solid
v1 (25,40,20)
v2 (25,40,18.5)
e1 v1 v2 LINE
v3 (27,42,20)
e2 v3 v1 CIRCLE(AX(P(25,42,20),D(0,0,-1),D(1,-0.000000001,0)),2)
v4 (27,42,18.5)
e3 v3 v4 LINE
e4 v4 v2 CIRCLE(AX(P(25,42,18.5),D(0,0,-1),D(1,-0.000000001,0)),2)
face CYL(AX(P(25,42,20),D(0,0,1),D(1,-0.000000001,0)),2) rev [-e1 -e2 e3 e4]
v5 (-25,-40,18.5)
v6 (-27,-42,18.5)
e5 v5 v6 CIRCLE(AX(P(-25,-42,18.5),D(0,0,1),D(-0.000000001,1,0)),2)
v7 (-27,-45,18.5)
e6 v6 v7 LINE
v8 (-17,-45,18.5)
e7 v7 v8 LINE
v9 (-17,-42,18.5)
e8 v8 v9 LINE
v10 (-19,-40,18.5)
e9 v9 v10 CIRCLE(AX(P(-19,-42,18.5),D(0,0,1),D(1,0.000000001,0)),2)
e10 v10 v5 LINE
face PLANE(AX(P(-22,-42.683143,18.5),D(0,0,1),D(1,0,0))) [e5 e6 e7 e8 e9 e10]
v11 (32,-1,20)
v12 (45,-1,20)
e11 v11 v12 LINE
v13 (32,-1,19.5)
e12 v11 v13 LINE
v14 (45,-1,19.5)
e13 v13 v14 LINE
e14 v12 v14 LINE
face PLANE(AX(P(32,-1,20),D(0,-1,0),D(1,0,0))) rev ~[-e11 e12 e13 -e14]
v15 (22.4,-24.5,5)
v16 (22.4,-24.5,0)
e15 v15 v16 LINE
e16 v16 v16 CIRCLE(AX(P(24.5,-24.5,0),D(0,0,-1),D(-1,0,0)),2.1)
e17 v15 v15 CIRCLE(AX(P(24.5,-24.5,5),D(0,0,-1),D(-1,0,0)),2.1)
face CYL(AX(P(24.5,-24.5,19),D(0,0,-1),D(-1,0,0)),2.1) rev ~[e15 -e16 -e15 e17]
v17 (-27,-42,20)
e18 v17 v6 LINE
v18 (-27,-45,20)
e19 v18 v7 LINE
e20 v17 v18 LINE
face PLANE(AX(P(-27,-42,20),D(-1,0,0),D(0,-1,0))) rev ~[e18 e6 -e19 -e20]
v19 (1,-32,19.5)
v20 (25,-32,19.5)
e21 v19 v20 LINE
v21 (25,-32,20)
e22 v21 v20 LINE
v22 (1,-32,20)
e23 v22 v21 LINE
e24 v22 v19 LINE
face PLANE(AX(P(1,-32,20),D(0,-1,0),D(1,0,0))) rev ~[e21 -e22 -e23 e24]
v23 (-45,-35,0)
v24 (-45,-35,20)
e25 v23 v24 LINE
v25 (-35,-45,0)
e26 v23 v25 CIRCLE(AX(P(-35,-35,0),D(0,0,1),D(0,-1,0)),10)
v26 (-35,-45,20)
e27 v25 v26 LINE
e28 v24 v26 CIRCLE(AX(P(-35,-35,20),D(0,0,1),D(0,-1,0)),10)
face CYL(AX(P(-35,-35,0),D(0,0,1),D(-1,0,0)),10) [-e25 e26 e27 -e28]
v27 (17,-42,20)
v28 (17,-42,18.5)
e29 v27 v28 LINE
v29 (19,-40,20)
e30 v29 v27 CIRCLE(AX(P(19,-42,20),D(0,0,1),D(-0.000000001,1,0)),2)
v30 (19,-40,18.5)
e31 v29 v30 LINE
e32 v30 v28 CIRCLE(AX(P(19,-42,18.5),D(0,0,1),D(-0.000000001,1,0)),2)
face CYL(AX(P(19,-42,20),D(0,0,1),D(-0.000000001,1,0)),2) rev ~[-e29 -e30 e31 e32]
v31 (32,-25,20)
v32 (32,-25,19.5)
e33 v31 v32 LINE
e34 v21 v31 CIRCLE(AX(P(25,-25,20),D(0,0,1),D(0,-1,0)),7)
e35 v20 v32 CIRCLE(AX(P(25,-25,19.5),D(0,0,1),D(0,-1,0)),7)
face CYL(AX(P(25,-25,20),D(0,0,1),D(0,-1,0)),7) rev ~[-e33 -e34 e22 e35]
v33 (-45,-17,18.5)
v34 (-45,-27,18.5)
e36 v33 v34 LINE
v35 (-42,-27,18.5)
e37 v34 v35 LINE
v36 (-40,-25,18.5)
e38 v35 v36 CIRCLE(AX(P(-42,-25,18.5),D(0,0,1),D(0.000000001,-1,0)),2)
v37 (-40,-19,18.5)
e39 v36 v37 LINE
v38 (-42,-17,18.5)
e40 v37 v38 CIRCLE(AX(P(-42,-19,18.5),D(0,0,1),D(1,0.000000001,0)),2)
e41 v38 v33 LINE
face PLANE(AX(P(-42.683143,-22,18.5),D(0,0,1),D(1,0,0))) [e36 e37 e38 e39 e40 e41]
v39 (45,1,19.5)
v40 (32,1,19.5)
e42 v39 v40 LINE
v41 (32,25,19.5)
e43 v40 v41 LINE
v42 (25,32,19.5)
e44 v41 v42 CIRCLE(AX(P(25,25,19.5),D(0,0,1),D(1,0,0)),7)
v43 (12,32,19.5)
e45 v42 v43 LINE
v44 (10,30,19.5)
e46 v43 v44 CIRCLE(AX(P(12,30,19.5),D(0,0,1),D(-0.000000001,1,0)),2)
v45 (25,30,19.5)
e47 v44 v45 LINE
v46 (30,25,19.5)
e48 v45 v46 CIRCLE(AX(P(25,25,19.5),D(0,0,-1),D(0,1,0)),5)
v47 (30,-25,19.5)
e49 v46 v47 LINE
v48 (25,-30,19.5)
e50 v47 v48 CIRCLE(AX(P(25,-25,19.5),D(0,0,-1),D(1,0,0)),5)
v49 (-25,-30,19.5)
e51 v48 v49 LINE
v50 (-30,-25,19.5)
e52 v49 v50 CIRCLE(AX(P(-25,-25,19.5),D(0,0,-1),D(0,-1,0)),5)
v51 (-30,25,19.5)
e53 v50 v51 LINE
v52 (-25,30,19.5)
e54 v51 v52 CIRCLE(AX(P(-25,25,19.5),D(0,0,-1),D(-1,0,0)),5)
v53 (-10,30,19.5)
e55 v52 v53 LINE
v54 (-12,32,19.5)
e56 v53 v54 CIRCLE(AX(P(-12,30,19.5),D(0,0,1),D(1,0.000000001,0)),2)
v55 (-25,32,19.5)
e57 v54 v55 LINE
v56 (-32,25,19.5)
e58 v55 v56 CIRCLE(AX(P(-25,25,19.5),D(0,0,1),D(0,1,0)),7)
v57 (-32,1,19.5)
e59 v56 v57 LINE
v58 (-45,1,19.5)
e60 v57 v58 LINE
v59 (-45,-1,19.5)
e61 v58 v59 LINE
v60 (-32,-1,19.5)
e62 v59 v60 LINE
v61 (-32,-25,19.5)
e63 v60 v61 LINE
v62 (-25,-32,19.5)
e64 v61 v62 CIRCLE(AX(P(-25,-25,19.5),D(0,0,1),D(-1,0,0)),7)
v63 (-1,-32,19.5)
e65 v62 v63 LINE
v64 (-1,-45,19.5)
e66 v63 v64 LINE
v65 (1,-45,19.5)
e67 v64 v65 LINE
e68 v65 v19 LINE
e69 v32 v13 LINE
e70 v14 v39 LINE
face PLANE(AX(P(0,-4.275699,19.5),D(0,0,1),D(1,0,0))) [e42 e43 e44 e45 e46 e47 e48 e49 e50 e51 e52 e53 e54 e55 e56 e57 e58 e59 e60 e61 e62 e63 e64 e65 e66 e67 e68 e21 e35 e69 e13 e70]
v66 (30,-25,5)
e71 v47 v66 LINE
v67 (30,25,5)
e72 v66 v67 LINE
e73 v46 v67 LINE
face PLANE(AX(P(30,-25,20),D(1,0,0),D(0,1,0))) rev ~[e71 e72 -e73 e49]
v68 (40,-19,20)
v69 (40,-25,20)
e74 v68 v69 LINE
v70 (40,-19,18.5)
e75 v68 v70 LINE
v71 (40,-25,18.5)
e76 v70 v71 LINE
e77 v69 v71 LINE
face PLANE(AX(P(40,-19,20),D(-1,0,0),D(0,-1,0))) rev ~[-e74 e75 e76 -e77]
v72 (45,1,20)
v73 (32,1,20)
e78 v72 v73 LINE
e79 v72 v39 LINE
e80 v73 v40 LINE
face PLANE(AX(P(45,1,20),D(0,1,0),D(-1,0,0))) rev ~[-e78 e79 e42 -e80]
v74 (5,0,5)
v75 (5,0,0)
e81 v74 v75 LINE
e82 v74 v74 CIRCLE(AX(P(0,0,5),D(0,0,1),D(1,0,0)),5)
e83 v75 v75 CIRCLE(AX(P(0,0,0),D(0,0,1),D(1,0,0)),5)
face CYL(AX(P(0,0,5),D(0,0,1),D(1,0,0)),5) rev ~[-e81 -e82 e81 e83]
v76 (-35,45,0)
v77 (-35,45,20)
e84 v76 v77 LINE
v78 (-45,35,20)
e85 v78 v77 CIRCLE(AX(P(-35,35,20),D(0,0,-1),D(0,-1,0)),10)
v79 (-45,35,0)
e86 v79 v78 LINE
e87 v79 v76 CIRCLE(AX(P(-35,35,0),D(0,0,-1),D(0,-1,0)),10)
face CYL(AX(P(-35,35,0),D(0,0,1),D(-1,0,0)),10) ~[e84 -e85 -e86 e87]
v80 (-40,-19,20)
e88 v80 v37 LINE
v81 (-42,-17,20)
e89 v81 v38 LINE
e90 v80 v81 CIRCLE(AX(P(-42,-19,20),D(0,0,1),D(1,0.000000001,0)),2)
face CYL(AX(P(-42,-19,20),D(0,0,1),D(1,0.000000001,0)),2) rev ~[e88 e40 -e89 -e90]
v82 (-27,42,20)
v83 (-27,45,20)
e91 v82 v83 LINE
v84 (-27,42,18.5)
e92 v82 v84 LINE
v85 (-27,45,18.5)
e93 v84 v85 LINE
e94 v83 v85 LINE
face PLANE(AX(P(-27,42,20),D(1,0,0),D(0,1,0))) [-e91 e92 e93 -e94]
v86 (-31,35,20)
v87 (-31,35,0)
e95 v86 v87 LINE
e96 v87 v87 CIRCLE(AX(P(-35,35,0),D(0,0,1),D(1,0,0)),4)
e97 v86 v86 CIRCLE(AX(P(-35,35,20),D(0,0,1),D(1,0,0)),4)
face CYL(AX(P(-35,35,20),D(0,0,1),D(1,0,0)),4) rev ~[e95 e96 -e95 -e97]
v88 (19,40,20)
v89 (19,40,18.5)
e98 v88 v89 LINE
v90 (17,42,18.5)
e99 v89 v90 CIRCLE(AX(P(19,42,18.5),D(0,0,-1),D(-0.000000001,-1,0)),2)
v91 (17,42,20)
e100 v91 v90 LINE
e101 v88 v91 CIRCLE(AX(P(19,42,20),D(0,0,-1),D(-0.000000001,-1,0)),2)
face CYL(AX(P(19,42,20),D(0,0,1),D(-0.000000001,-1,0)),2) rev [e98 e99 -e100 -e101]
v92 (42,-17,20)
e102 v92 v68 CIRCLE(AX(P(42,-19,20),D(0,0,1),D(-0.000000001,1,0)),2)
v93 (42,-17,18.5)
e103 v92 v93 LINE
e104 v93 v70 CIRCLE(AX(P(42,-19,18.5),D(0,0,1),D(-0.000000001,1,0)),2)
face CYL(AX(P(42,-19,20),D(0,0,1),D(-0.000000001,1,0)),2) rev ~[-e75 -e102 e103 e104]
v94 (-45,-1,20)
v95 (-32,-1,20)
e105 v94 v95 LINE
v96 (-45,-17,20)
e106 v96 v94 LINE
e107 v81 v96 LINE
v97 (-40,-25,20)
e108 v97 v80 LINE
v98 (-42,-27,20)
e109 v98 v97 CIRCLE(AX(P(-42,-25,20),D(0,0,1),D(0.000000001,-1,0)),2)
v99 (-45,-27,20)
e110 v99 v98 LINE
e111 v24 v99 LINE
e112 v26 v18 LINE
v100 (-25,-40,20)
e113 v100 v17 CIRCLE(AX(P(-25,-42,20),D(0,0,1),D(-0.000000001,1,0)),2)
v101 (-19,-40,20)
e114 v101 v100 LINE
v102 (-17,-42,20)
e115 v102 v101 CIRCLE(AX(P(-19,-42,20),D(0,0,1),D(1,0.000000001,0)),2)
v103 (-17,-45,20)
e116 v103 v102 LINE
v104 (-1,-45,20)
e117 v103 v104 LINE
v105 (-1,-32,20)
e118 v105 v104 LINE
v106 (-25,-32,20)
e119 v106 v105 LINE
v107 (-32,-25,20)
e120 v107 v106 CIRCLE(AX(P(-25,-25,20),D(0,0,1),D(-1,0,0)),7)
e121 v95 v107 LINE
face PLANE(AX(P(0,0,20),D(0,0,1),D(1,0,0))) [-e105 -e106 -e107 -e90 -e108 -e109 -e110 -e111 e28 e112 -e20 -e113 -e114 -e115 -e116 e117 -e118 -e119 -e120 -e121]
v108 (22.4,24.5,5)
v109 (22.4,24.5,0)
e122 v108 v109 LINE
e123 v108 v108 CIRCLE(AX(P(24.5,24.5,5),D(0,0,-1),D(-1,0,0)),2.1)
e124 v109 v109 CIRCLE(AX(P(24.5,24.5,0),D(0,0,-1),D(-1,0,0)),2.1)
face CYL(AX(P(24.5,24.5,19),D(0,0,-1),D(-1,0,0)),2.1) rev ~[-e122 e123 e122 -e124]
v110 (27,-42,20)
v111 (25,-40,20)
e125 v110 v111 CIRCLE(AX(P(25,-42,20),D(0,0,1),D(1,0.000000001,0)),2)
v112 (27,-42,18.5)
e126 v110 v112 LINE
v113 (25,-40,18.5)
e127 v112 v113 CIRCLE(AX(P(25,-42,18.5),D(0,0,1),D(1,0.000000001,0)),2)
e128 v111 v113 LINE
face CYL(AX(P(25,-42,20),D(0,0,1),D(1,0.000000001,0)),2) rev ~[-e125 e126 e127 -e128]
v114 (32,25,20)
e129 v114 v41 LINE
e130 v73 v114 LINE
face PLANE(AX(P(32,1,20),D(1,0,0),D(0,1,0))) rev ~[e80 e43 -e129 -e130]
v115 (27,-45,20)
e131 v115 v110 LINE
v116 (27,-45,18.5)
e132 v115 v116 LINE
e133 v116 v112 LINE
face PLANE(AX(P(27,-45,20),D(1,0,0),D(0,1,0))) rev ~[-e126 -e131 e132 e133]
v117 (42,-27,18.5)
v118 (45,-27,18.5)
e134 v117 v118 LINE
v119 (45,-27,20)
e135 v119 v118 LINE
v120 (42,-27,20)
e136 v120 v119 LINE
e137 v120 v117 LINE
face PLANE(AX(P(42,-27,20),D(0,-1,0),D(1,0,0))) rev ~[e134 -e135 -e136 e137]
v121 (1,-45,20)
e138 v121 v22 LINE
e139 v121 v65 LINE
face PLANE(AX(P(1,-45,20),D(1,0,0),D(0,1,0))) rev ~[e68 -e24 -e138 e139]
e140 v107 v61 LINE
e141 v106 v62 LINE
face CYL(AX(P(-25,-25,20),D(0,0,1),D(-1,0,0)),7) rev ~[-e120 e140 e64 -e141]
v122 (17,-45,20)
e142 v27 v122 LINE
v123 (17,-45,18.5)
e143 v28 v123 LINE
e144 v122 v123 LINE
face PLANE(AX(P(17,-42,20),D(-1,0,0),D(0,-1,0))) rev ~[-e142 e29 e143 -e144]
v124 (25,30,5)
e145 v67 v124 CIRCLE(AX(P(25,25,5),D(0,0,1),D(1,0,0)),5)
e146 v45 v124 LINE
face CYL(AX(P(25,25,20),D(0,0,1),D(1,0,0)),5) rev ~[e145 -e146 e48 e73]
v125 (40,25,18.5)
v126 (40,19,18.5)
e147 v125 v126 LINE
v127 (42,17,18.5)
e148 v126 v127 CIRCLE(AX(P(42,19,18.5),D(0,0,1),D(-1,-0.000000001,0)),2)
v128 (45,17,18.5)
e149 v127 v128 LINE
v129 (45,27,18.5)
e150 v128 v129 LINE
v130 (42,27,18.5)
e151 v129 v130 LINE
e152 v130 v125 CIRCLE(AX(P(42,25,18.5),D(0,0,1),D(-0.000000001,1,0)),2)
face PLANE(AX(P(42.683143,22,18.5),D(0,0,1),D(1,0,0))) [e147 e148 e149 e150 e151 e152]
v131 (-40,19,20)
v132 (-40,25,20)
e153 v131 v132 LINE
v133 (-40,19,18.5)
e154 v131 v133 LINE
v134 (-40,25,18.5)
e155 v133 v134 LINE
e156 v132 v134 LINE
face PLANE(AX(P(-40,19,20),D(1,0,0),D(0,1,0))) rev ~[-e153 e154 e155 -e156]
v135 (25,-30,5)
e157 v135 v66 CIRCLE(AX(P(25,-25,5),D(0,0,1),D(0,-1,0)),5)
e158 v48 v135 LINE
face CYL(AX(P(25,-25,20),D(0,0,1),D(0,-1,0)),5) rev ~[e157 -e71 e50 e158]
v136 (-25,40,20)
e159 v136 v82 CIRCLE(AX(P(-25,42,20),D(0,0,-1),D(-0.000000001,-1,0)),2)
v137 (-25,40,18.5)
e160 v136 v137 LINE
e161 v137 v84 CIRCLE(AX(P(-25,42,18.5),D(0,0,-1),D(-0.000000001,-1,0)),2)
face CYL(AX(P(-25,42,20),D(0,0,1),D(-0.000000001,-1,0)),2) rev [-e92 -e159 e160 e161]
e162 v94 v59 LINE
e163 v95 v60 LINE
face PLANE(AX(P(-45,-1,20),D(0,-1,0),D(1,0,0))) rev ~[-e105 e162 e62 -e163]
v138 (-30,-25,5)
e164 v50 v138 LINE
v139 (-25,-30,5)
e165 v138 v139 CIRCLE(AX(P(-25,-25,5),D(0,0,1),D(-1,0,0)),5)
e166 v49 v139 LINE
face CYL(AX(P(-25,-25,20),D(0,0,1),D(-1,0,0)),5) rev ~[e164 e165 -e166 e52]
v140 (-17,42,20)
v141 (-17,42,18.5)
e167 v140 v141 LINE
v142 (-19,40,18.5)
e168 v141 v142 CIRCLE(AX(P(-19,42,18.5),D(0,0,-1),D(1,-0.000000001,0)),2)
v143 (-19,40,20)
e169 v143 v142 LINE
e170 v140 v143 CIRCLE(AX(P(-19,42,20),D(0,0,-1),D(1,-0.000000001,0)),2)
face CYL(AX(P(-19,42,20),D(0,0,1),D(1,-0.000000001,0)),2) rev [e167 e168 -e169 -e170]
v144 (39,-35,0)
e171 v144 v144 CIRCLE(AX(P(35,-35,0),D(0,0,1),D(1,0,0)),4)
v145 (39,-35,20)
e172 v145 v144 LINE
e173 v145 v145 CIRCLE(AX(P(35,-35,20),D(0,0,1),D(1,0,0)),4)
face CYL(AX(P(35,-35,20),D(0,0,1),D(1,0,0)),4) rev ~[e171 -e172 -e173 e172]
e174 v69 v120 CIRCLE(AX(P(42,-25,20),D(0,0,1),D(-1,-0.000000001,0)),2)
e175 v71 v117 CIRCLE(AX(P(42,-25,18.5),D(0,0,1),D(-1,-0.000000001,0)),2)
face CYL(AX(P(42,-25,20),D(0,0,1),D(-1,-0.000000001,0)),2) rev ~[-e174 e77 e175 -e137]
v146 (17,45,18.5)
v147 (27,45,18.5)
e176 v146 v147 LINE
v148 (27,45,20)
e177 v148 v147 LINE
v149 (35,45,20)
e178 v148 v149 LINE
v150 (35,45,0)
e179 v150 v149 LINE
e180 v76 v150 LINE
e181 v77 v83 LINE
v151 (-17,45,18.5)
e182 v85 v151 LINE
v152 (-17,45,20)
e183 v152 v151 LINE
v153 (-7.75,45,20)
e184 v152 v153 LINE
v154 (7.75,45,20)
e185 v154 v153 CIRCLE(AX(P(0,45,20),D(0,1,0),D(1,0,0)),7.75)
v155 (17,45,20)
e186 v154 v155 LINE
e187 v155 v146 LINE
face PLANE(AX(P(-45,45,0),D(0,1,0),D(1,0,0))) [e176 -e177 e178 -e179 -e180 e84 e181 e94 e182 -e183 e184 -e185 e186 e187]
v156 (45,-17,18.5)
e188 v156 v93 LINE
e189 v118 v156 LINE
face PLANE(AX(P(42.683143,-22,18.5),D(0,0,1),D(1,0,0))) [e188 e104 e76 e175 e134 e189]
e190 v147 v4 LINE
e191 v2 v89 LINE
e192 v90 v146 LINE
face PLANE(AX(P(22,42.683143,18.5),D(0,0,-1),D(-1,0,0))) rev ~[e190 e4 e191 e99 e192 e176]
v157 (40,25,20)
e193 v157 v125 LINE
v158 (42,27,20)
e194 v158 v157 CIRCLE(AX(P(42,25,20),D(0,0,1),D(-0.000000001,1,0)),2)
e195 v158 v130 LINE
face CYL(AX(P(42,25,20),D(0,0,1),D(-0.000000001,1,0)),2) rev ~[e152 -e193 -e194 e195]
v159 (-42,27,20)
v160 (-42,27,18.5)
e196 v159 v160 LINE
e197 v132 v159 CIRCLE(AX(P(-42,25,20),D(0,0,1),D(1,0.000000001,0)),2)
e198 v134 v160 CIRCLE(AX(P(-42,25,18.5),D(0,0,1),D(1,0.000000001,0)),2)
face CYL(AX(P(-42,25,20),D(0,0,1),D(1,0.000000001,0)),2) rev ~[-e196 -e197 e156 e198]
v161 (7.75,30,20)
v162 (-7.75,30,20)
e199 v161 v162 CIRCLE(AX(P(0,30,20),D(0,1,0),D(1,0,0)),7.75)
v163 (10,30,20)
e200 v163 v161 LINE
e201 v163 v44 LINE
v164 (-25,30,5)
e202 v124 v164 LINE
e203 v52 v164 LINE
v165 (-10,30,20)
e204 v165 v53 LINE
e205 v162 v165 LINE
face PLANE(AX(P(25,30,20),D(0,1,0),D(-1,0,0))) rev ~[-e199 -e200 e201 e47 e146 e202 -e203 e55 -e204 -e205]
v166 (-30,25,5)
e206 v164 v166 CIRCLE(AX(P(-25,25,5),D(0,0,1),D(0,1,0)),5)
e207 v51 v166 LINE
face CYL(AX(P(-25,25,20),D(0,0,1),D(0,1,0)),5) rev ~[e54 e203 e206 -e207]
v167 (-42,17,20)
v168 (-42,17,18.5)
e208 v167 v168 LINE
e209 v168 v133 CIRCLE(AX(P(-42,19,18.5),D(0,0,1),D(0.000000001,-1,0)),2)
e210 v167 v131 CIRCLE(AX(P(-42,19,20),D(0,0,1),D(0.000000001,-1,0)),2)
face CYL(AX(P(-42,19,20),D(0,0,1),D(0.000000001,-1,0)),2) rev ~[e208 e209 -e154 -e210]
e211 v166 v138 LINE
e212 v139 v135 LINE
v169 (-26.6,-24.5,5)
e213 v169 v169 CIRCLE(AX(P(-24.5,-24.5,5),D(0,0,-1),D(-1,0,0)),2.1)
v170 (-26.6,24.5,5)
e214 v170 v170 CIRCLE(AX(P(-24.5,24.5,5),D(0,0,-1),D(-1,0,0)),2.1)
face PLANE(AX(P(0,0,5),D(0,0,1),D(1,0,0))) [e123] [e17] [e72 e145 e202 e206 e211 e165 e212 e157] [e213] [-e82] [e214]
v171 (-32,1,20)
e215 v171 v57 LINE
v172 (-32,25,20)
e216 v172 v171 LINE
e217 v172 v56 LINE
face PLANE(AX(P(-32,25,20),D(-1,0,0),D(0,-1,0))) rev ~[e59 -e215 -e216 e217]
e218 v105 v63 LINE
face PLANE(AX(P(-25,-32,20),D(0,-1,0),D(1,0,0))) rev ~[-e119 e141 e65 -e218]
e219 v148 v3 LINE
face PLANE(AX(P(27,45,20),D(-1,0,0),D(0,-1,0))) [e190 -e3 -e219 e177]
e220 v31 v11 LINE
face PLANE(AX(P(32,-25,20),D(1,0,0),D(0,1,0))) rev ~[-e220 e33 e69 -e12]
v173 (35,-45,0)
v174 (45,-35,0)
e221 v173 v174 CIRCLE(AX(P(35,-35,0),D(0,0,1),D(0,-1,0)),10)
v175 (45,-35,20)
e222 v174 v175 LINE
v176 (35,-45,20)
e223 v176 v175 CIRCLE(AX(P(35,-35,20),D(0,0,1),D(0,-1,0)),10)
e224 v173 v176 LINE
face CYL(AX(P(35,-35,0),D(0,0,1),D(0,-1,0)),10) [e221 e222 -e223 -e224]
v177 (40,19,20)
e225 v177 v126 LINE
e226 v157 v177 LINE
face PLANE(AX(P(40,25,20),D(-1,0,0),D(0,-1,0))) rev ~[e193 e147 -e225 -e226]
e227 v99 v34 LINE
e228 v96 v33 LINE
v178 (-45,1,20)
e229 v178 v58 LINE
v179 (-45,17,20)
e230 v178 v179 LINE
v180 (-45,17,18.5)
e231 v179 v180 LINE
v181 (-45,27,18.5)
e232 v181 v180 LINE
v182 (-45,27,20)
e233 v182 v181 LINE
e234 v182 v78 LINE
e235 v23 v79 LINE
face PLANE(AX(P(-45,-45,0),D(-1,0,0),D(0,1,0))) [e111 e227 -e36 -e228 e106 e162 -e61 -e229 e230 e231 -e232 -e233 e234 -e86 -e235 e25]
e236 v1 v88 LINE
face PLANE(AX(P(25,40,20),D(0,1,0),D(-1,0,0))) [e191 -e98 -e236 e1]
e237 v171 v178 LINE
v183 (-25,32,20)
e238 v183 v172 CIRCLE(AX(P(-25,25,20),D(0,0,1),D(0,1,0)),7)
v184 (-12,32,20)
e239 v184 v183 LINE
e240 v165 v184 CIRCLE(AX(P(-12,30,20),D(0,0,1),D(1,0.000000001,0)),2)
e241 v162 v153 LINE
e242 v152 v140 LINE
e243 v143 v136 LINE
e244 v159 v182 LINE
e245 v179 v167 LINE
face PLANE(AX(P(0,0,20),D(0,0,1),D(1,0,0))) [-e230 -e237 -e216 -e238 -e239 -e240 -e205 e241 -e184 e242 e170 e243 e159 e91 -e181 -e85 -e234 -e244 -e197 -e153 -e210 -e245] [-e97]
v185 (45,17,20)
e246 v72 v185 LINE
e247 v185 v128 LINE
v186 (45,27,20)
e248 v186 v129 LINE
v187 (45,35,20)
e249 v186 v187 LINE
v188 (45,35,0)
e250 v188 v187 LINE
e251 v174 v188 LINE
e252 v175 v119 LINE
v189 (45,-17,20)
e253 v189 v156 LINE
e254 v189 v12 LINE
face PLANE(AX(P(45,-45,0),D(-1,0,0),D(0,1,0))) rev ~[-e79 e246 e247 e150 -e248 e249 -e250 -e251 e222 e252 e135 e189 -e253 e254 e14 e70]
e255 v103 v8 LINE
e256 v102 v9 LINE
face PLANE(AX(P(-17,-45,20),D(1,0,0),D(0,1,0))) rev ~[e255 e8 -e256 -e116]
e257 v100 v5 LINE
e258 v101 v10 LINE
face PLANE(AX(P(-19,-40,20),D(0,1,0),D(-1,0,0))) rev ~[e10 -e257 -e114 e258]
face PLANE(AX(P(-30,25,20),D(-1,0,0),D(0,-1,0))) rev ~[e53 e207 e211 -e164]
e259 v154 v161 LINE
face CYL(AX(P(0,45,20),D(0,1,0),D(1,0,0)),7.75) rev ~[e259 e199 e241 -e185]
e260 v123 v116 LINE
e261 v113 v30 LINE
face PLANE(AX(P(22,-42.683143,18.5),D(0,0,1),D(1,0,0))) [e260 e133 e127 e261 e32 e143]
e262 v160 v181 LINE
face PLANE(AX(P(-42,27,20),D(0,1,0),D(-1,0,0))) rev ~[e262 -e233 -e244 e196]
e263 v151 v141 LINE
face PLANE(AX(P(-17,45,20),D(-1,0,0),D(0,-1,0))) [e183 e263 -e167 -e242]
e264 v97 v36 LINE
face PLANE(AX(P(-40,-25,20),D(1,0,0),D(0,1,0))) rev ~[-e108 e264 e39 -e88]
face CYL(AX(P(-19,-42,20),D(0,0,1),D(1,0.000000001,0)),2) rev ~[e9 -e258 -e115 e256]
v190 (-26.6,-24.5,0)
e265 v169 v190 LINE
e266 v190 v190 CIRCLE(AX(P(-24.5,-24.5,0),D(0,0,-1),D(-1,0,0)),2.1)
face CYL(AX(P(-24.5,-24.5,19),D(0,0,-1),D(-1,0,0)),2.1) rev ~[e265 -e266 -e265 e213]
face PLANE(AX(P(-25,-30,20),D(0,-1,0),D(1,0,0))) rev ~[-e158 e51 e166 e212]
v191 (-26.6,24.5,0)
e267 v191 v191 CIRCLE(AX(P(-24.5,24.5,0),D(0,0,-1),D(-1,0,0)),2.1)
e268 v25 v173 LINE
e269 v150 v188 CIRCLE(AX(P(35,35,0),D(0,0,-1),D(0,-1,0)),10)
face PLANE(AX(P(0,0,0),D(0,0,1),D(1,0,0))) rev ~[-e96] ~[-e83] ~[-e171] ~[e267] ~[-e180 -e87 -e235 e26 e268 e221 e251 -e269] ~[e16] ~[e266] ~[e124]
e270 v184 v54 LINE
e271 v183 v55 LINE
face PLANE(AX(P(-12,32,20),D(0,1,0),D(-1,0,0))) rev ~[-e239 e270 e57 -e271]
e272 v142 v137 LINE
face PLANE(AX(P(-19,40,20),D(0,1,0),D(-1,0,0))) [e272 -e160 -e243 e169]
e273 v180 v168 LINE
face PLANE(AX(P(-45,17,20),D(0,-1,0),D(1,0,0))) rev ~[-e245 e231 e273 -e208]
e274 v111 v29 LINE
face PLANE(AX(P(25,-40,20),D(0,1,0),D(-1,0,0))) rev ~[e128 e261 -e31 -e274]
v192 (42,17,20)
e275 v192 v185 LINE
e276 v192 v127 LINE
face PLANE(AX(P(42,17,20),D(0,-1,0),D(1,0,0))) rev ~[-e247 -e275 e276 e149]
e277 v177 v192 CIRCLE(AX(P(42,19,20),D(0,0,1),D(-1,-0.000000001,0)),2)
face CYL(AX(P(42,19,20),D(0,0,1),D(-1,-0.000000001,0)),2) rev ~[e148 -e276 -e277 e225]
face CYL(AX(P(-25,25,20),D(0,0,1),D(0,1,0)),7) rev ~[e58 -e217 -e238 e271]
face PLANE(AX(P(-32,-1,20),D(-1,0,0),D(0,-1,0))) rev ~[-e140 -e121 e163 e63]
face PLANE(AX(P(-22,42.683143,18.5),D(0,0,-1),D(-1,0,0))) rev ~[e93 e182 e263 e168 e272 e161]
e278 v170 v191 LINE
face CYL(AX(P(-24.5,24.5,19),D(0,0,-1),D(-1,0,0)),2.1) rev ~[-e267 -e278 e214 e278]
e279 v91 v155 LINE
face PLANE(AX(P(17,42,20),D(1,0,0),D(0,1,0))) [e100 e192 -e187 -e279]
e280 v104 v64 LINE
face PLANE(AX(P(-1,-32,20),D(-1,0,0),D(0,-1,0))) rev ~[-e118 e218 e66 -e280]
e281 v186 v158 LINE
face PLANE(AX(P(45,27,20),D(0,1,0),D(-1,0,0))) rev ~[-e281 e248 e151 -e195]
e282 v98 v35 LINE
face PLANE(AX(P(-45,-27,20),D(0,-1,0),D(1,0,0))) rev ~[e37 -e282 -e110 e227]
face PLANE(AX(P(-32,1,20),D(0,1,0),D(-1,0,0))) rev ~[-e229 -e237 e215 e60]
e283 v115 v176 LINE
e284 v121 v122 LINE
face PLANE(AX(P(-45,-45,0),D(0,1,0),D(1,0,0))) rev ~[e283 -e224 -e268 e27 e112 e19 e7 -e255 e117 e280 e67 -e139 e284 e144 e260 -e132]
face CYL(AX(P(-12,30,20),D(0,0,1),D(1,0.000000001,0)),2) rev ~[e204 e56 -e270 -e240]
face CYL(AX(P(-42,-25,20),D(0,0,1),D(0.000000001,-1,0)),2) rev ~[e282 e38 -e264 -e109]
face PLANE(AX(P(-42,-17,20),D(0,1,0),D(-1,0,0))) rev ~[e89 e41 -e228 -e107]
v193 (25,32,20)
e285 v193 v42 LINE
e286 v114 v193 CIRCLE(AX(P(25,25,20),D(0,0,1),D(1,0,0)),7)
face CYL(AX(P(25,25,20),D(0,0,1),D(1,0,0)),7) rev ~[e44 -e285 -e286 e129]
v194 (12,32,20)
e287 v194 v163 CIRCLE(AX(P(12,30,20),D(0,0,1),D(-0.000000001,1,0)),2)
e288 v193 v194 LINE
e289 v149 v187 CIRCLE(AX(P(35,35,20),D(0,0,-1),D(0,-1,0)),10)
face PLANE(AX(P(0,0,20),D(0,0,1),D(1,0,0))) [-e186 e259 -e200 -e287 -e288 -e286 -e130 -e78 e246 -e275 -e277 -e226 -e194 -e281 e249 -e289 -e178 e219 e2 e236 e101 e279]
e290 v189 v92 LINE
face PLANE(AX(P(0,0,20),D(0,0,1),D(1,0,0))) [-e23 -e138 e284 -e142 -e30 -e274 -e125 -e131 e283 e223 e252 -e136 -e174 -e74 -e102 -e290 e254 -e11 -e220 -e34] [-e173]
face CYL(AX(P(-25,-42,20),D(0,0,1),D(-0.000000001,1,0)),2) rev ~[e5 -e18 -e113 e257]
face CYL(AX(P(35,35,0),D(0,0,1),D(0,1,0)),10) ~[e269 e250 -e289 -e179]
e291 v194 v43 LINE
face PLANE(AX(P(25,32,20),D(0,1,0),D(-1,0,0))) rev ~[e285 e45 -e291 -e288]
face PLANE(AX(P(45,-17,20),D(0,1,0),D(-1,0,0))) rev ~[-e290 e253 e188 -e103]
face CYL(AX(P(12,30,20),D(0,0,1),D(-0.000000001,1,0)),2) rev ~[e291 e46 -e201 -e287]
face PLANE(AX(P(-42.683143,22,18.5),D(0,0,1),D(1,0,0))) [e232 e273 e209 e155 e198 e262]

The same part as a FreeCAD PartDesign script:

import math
import FreeCAD as App
import Part
import Sketcher


def edges_at(feature, points):
    """Names of the edges that pass closest to the given points."""
    edges = feature.Shape.Edges
    near = lambda p: min(range(len(edges)), key=lambda i: edges[i].distToShape(Part.Vertex(*p))[0])
    return sorted({f"Edge{near(p) + 1}" for p in points})

doc = App.newDocument("Part")
params = doc.addObject("Spreadsheet::Sheet", "Params")
for row, (alias, value) in enumerate([
    ("sketch1_width", "90 mm"),
    ("pad1_length", "20 mm"),
    ("sketch2_radius", "5 mm"),
    ("sketch2_width", "50 mm"),
    ("pocket1_length", "15 mm"),
    ("sketch3_radius", "2 mm"),
    ("sketch3_radius2", "5 mm"),
    ("sketch3_width", "13 mm"),
    ("sketch3_width2", "50 mm"),
    ("sketch3_width3", "24 mm"),
    ("pocket2_length", "0.5 mm"),
    ("fillet_radius", "10 mm"),
    ("sketch4_diameter", "8 mm"),
    ("sketch5_diameter", "10 mm"),
    ("sketch6_radius", "2 mm"),
    ("sketch6_width", "10 mm"),
    ("sketch6_width2", "3 mm"),
    ("pocket5_length", "1.5 mm"),
    ("sketch7_diameter", "4.2 mm"),
    ("hole_diameter", "4.2 mm"),
    ("hole_depth", "14 mm"),
    ("sketch8_diameter", "15.5 mm"),
], start=1):
    params.set(f"A{row}", alias)
    params.set(f"B{row}", "=" + value)
    params.setAlias(f"B{row}", alias)

body = doc.addObject("PartDesign::Body", "Body")

sketch1 = body.newObject("Sketcher::SketchObject", "Sketch")
sketch1.AttachmentSupport = (doc.getObject("XY_Plane"), [""])
sketch1.MapMode = "FlatFace"
sketch1.addGeometry([
    Part.LineSegment(App.Vector(-45, 45, 0), App.Vector(-45, -45, 0)),
    Part.LineSegment(App.Vector(-45, -45, 0), App.Vector(45, -45, 0)),
    Part.LineSegment(App.Vector(45, -45, 0), App.Vector(45, 45, 0)),
    Part.LineSegment(App.Vector(45, 45, 0), App.Vector(-45, 45, 0)),
], False)
sketch1.addConstraint([
    Sketcher.Constraint("Coincident", 0, 2, 1, 1),
    Sketcher.Constraint("Coincident", 1, 2, 2, 1),
    Sketcher.Constraint("Coincident", 2, 2, 3, 1),
    Sketcher.Constraint("Coincident", 3, 2, 0, 1),
    Sketcher.Constraint("Vertical", 0),
    Sketcher.Constraint("Horizontal", 1),
    Sketcher.Constraint("Vertical", 2),
    Sketcher.Constraint("Horizontal", 3),
    Sketcher.Constraint("Symmetric", 0, 2, 2, 2, -1, 1),
    Sketcher.Constraint("Equal", 3, 0),
    Sketcher.Constraint("DistanceX", 1, 1, 1, 2, 90.0),
])
sketch1.setExpression("Constraints[10]", "Params.sketch1_width")
pad1 = body.newObject("PartDesign::Pad", "Pad")
pad1.Profile = sketch1
pad1.setExpression("Length", "Params.pad1_length")

sketch2 = body.newObject("Sketcher::SketchObject", "Sketch001")
sketch2.AttachmentSupport = (doc.getObject("XY_Plane"), [""])
sketch2.MapMode = "FlatFace"
sketch2.AttachmentOffset = App.Placement(App.Vector(0, 0, 20), App.Rotation())
sketch2.addGeometry([
    Part.LineSegment(App.Vector(-25, -30, 0), App.Vector(25, -30, 0)),
    Part.ArcOfCircle(Part.Circle(App.Vector(25, -25, 0), App.Vector(0, 0, 1), 5), math.radians(-90), math.radians(0)),
    Part.LineSegment(App.Vector(30, -25, 0), App.Vector(30, 25, 0)),
    Part.ArcOfCircle(Part.Circle(App.Vector(25, 25, 0), App.Vector(0, 0, 1), 5), math.radians(0), math.radians(90)),
    Part.LineSegment(App.Vector(25, 30, 0), App.Vector(-25, 30, 0)),
    Part.ArcOfCircle(Part.Circle(App.Vector(-25, 25, 0), App.Vector(0, 0, 1), 5), math.radians(90), math.radians(180)),
    Part.LineSegment(App.Vector(-30, 25, 0), App.Vector(-30, -25, 0)),
    Part.ArcOfCircle(Part.Circle(App.Vector(-25, -25, 0), App.Vector(0, 0, 1), 5), math.radians(180), math.radians(270)),
], False)
sketch2.addConstraint([
    Sketcher.Constraint("Tangent", 0, 2, 1, 1),
    Sketcher.Constraint("Tangent", 1, 2, 2, 1),
    Sketcher.Constraint("Tangent", 2, 2, 3, 1),
    Sketcher.Constraint("Tangent", 3, 2, 4, 1),
    Sketcher.Constraint("Tangent", 4, 2, 5, 1),
    Sketcher.Constraint("Tangent", 5, 2, 6, 1),
    Sketcher.Constraint("Tangent", 6, 2, 7, 1),
    Sketcher.Constraint("Tangent", 7, 2, 0, 1),
    Sketcher.Constraint("Horizontal", 0),
    Sketcher.Constraint("Vertical", 2),
    Sketcher.Constraint("Horizontal", 4),
    Sketcher.Constraint("Vertical", 6),
    Sketcher.Constraint("Equal", 1, 3),
    Sketcher.Constraint("Equal", 3, 5),
    Sketcher.Constraint("Equal", 5, 7),
    Sketcher.Constraint("Symmetric", 1, 3, 5, 3, -1, 1),
    Sketcher.Constraint("Equal", 4, 2),
    Sketcher.Constraint("Radius", 1, 5.0),
    Sketcher.Constraint("DistanceX", 0, 1, 0, 2, 50.0),
])
sketch2.setExpression("Constraints[17]", "Params.sketch2_radius")
sketch2.setExpression("Constraints[18]", "Params.sketch2_width")
pocket1 = body.newObject("PartDesign::Pocket", "Pocket")
pocket1.Profile = sketch2
pocket1.setExpression("Length", "Params.pocket1_length")

sketch3 = body.newObject("Sketcher::SketchObject", "Sketch002")
sketch3.AttachmentSupport = (doc.getObject("XY_Plane"), [""])
sketch3.MapMode = "FlatFace"
sketch3.AttachmentOffset = App.Placement(App.Vector(0, 0, 20), App.Rotation())
sketch3.addGeometry([
    Part.LineSegment(App.Vector(25, 32, 0), App.Vector(12, 32, 0)),
    Part.ArcOfCircle(Part.Circle(App.Vector(12, 30, 0), App.Vector(0, 0, 1), 2), math.radians(90), math.radians(180)),
    Part.LineSegment(App.Vector(10, 30, 0), App.Vector(25, 30, 0)),
    Part.ArcOfCircle(Part.Circle(App.Vector(25, 25, 0), App.Vector(0, 0, 1), 5), math.radians(0), math.radians(90)),
    Part.LineSegment(App.Vector(30, 25, 0), App.Vector(30, -25, 0)),
    Part.ArcOfCircle(Part.Circle(App.Vector(25, -25, 0), App.Vector(0, 0, 1), 5), math.radians(-90), math.radians(0)),
    Part.LineSegment(App.Vector(25, -30, 0), App.Vector(-25, -30, 0)),
    Part.ArcOfCircle(Part.Circle(App.Vector(-25, -25, 0), App.Vector(0, 0, 1), 5), math.radians(180), math.radians(270)),
    Part.LineSegment(App.Vector(-30, -25, 0), App.Vector(-30, 25, 0)),
    Part.ArcOfCircle(Part.Circle(App.Vector(-25, 25, 0), App.Vector(0, 0, 1), 5), math.radians(90), math.radians(180)),
    Part.LineSegment(App.Vector(-25, 30, 0), App.Vector(-10, 30, 0)),
    Part.ArcOfCircle(Part.Circle(App.Vector(-12, 30, 0), App.Vector(0, 0, 1), 2), math.radians(0), math.radians(90)),
    Part.LineSegment(App.Vector(-12, 32, 0), App.Vector(-25, 32, 0)),
    Part.ArcOfCircle(Part.Circle(App.Vector(-25, 25, 0), App.Vector(0, 0, 1), 7), math.radians(90), math.radians(180)),
    Part.LineSegment(App.Vector(-32, 25, 0), App.Vector(-32, 1, 0)),
    Part.LineSegment(App.Vector(-32, 1, 0), App.Vector(-45, 1, 0)),
    Part.LineSegment(App.Vector(-45, 1, 0), App.Vector(-45, -1, 0)),
    Part.LineSegment(App.Vector(-45, -1, 0), App.Vector(-32, -1, 0)),
    Part.LineSegment(App.Vector(-32, -1, 0), App.Vector(-32, -25, 0)),
    Part.ArcOfCircle(Part.Circle(App.Vector(-25, -25, 0), App.Vector(0, 0, 1), 7), math.radians(-180), math.radians(-90)),
    Part.LineSegment(App.Vector(-25, -32, 0), App.Vector(-1, -32, 0)),
    Part.LineSegment(App.Vector(-1, -32, 0), App.Vector(-1, -45, 0)),
    Part.LineSegment(App.Vector(-1, -45, 0), App.Vector(1, -45, 0)),
    Part.LineSegment(App.Vector(1, -45, 0), App.Vector(1, -32, 0)),
    Part.LineSegment(App.Vector(1, -32, 0), App.Vector(25, -32, 0)),
    Part.ArcOfCircle(Part.Circle(App.Vector(25, -25, 0), App.Vector(0, 0, 1), 7), math.radians(-90), math.radians(0)),
    Part.LineSegment(App.Vector(32, -25, 0), App.Vector(32, -1, 0)),
    Part.LineSegment(App.Vector(32, -1, 0), App.Vector(45, -1, 0)),
    Part.LineSegment(App.Vector(45, -1, 0), App.Vector(45, 1, 0)),
    Part.LineSegment(App.Vector(45, 1, 0), App.Vector(32, 1, 0)),
    Part.LineSegment(App.Vector(32, 1, 0), App.Vector(32, 25, 0)),
    Part.ArcOfCircle(Part.Circle(App.Vector(25, 25, 0), App.Vector(0, 0, 1), 7), math.radians(0), math.radians(90)),
], False)
sketch3.addConstraint([
    Sketcher.Constraint("Tangent", 0, 2, 1, 1),
    Sketcher.Constraint("Coincident", 1, 2, 2, 1),
    Sketcher.Constraint("Tangent", 2, 2, 3, 2),
    Sketcher.Constraint("Tangent", 3, 1, 4, 1),
    Sketcher.Constraint("Tangent", 4, 2, 5, 2),
    Sketcher.Constraint("Tangent", 5, 1, 6, 1),
    Sketcher.Constraint("Tangent", 6, 2, 7, 2),
    Sketcher.Constraint("Tangent", 7, 1, 8, 1),
    Sketcher.Constraint("Tangent", 8, 2, 9, 2),
    Sketcher.Constraint("Tangent", 9, 1, 10, 1),
    Sketcher.Constraint("Coincident", 10, 2, 11, 1),
    Sketcher.Constraint("Tangent", 11, 2, 12, 1),
    Sketcher.Constraint("Tangent", 12, 2, 13, 1),
    Sketcher.Constraint("Tangent", 13, 2, 14, 1),
    Sketcher.Constraint("Coincident", 14, 2, 15, 1),
    Sketcher.Constraint("Coincident", 15, 2, 16, 1),
    Sketcher.Constraint("Coincident", 16, 2, 17, 1),
    Sketcher.Constraint("Coincident", 17, 2, 18, 1),
    Sketcher.Constraint("Tangent", 18, 2, 19, 1),
    Sketcher.Constraint("Tangent", 19, 2, 20, 1),
    Sketcher.Constraint("Coincident", 20, 2, 21, 1),
    Sketcher.Constraint("Coincident", 21, 2, 22, 1),
    Sketcher.Constraint("Coincident", 22, 2, 23, 1),
    Sketcher.Constraint("Coincident", 23, 2, 24, 1),
    Sketcher.Constraint("Tangent", 24, 2, 25, 1),
    Sketcher.Constraint("Tangent", 25, 2, 26, 1),
    Sketcher.Constraint("Coincident", 26, 2, 27, 1),
    Sketcher.Constraint("Coincident", 27, 2, 28, 1),
    Sketcher.Constraint("Coincident", 28, 2, 29, 1),
    Sketcher.Constraint("Coincident", 29, 2, 30, 1),
    Sketcher.Constraint("Tangent", 30, 2, 31, 1),
    Sketcher.Constraint("Tangent", 31, 2, 0, 1),
    Sketcher.Constraint("Horizontal", 0),
    Sketcher.Constraint("Horizontal", 2),
    Sketcher.Constraint("Vertical", 4),
    Sketcher.Constraint("Horizontal", 6),
    Sketcher.Constraint("Vertical", 8),
    Sketcher.Constraint("Horizontal", 10),
    Sketcher.Constraint("Horizontal", 12),
    Sketcher.Constraint("Vertical", 14),
    Sketcher.Constraint("Horizontal", 15),
    Sketcher.Constraint("Vertical", 16),
    Sketcher.Constraint("Horizontal", 17),
    Sketcher.Constraint("Vertical", 18),
    Sketcher.Constraint("Horizontal", 20),
    Sketcher.Constraint("Vertical", 21),
    Sketcher.Constraint("Horizontal", 22),
    Sketcher.Constraint("Vertical", 23),
    Sketcher.Constraint("Horizontal", 24),
    Sketcher.Constraint("Vertical", 26),
    Sketcher.Constraint("Horizontal", 27),
    Sketcher.Constraint("Vertical", 28),
    Sketcher.Constraint("Horizontal", 29),
    Sketcher.Constraint("Vertical", 30),
    Sketcher.Constraint("Coincident", 13, 3, 9, 3),
    Sketcher.Constraint("Coincident", 19, 3, 7, 3),
    Sketcher.Constraint("Coincident", 25, 3, 5, 3),
    Sketcher.Constraint("Coincident", 31, 3, 3, 3),
    Sketcher.Constraint("Equal", 3, 5),
    Sketcher.Constraint("Equal", 5, 7),
    Sketcher.Constraint("Equal", 7, 9),
    Sketcher.Constraint("Equal", 1, 11),
    Sketcher.Constraint("Equal", 13, 19),
    Sketcher.Constraint("Equal", 19, 25),
    Sketcher.Constraint("Equal", 25, 31),
    Sketcher.Constraint("Symmetric", 3, 3, 7, 3, -1, 1),
    Sketcher.Constraint("Symmetric", 15, 2, 27, 2, -1, 1),
    Sketcher.Constraint("Symmetric", 1, 3, 11, 3, -2),
    Sketcher.Constraint("Horizontal", 11, 3, 1, 2),
    Sketcher.Constraint("Horizontal", 17, 2, 26, 2),
    Sketcher.Constraint("Horizontal", 15, 2, 28, 2),
    Sketcher.Constraint("Equal", 12, 15),
    Sketcher.Constraint("Equal", 20, 24),
    Sketcher.Constraint("Equal", 6, 4),
    Sketcher.Constraint("Equal", 24, 14),
    Sketcher.Constraint("Equal", 29, 21),
    Sketcher.Constraint("Radius", 1, 2.0),
    Sketcher.Constraint("Radius", 3, 5.0),
    Sketcher.Constraint("DistanceX", 0, 2, 0, 1, 13.0),
    Sketcher.Constraint("DistanceX", 6, 2, 6, 1, 50.0),
    Sketcher.Constraint("DistanceX", 20, 1, 20, 2, 24.0),
])
sketch3.setExpression("Constraints[76]", "Params.sketch3_radius")
sketch3.setExpression("Constraints[77]", "Params.sketch3_radius2")
sketch3.setExpression("Constraints[78]", "Params.sketch3_width")
sketch3.setExpression("Constraints[79]", "Params.sketch3_width2")
sketch3.setExpression("Constraints[80]", "Params.sketch3_width3")
pocket2 = body.newObject("PartDesign::Pocket", "Pocket001")
pocket2.Profile = sketch3
pocket2.setExpression("Length", "Params.pocket2_length")
doc.recompute()

fillet = body.newObject("PartDesign::Fillet", "Fillet")
fillet.Base = (pocket2, edges_at(pocket2, [
    (45, -45, 10),
    (-45, -45, 10),
    (-45, 45, 10),
    (45, 45, 10),
]))
fillet.setExpression("Radius", "Params.fillet_radius")

sketch4 = body.newObject("Sketcher::SketchObject", "Sketch003")
sketch4.AttachmentSupport = (doc.getObject("XY_Plane"), [""])
sketch4.MapMode = "FlatFace"
sketch4.AttachmentOffset = App.Placement(App.Vector(0, 0, 20), App.Rotation())
sketch4.addGeometry([
    Part.Circle(App.Vector(-35, 35, 0), App.Vector(0, 0, 1), 4),
    Part.Circle(App.Vector(35, -35, 0), App.Vector(0, 0, 1), 4),
], False)
sketch4.addConstraint([
    Sketcher.Constraint("Equal", 0, 1),
    Sketcher.Constraint("Symmetric", 0, 3, 1, 3, -1, 1),
    Sketcher.Constraint("Diameter", 0, 8.0),
    Sketcher.Constraint("DistanceX", 0, 3, -1, 1, 35.0),
    Sketcher.Constraint("DistanceY", -1, 1, 0, 3, 35.0),
])
sketch4.setExpression("Constraints[2]", "Params.sketch4_diameter")
pocket3 = body.newObject("PartDesign::Pocket", "Pocket002")
pocket3.Profile = sketch4
pocket3.Type = "ThroughAll"

sketch5 = body.newObject("Sketcher::SketchObject", "Sketch004")
sketch5.AttachmentSupport = (doc.getObject("XY_Plane"), [""])
sketch5.MapMode = "FlatFace"
sketch5.AttachmentOffset = App.Placement(App.Vector(0, 0, 5), App.Rotation())
sketch5.addGeometry(Part.Circle(App.Vector(0, 0, 0), App.Vector(0, 0, 1), 5), False)
sketch5.addConstraint([
    Sketcher.Constraint("Coincident", 0, 3, -1, 1),
    Sketcher.Constraint("Diameter", 0, 10.0),
])
sketch5.setExpression("Constraints[1]", "Params.sketch5_diameter")
pocket4 = body.newObject("PartDesign::Pocket", "Pocket003")
pocket4.Profile = sketch5
pocket4.Type = "ThroughAll"

sketch6 = body.newObject("Sketcher::SketchObject", "Sketch005")
sketch6.AttachmentSupport = (doc.getObject("XY_Plane"), [""])
sketch6.MapMode = "FlatFace"
sketch6.AttachmentOffset = App.Placement(App.Vector(0, 0, 20), App.Rotation())
sketch6.addGeometry([
    Part.LineSegment(App.Vector(-17, 45, 0), App.Vector(-27, 45, 0)),
    Part.LineSegment(App.Vector(-27, 45, 0), App.Vector(-27, 42, 0)),
    Part.ArcOfCircle(Part.Circle(App.Vector(-25, 42, 0), App.Vector(0, 0, 1), 2), math.radians(-180), math.radians(-90)),
    Part.LineSegment(App.Vector(-25, 40, 0), App.Vector(-19, 40, 0)),
    Part.ArcOfCircle(Part.Circle(App.Vector(-19, 42, 0), App.Vector(0, 0, 1), 2), math.radians(-90), math.radians(0)),
    Part.LineSegment(App.Vector(-17, 42, 0), App.Vector(-17, 45, 0)),
    Part.LineSegment(App.Vector(27, 45, 0), App.Vector(17, 45, 0)),
    Part.LineSegment(App.Vector(17, 45, 0), App.Vector(17, 42, 0)),
    Part.ArcOfCircle(Part.Circle(App.Vector(19, 42, 0), App.Vector(0, 0, 1), 2), math.radians(-180), math.radians(-90)),
    Part.LineSegment(App.Vector(19, 40, 0), App.Vector(25, 40, 0)),
    Part.ArcOfCircle(Part.Circle(App.Vector(25, 42, 0), App.Vector(0, 0, 1), 2), math.radians(-90), math.radians(0)),
    Part.LineSegment(App.Vector(27, 42, 0), App.Vector(27, 45, 0)),
    Part.LineSegment(App.Vector(45, 27, 0), App.Vector(42, 27, 0)),
    Part.ArcOfCircle(Part.Circle(App.Vector(42, 25, 0), App.Vector(0, 0, 1), 2), math.radians(90), math.radians(180)),
    Part.LineSegment(App.Vector(40, 25, 0), App.Vector(40, 19, 0)),
    Part.ArcOfCircle(Part.Circle(App.Vector(42, 19, 0), App.Vector(0, 0, 1), 2), math.radians(-180), math.radians(-90)),
    Part.LineSegment(App.Vector(42, 17, 0), App.Vector(45, 17, 0)),
    Part.LineSegment(App.Vector(45, 17, 0), App.Vector(45, 27, 0)),
    Part.LineSegment(App.Vector(45, -17, 0), App.Vector(42, -17, 0)),
    Part.ArcOfCircle(Part.Circle(App.Vector(42, -19, 0), App.Vector(0, 0, 1), 2), math.radians(90), math.radians(180)),
    Part.LineSegment(App.Vector(40, -19, 0), App.Vector(40, -25, 0)),
    Part.ArcOfCircle(Part.Circle(App.Vector(42, -25, 0), App.Vector(0, 0, 1), 2), math.radians(-180), math.radians(-90)),
    Part.LineSegment(App.Vector(42, -27, 0), App.Vector(45, -27, 0)),
    Part.LineSegment(App.Vector(45, -27, 0), App.Vector(45, -17, 0)),
    Part.LineSegment(App.Vector(27, -45, 0), App.Vector(27, -42, 0)),
    Part.ArcOfCircle(Part.Circle(App.Vector(25, -42, 0), App.Vector(0, 0, 1), 2), math.radians(0), math.radians(90)),
    Part.LineSegment(App.Vector(25, -40, 0), App.Vector(19, -40, 0)),
    Part.ArcOfCircle(Part.Circle(App.Vector(19, -42, 0), App.Vector(0, 0, 1), 2), math.radians(90), math.radians(180)),
    Part.LineSegment(App.Vector(17, -42, 0), App.Vector(17, -45, 0)),
    Part.LineSegment(App.Vector(17, -45, 0), App.Vector(27, -45, 0)),
    Part.LineSegment(App.Vector(-17, -45, 0), App.Vector(-17, -42, 0)),
    Part.ArcOfCircle(Part.Circle(App.Vector(-19, -42, 0), App.Vector(0, 0, 1), 2), math.radians(0), math.radians(90)),
    Part.LineSegment(App.Vector(-19, -40, 0), App.Vector(-25, -40, 0)),
    Part.ArcOfCircle(Part.Circle(App.Vector(-25, -42, 0), App.Vector(0, 0, 1), 2), math.radians(90), math.radians(180)),
    Part.LineSegment(App.Vector(-27, -42, 0), App.Vector(-27, -45, 0)),
    Part.LineSegment(App.Vector(-27, -45, 0), App.Vector(-17, -45, 0)),
    Part.LineSegment(App.Vector(-45, -27, 0), App.Vector(-42, -27, 0)),
    Part.ArcOfCircle(Part.Circle(App.Vector(-42, -25, 0), App.Vector(0, 0, 1), 2), math.radians(-90), math.radians(0)),
    Part.LineSegment(App.Vector(-40, -25, 0), App.Vector(-40, -19, 0)),
    Part.ArcOfCircle(Part.Circle(App.Vector(-42, -19, 0), App.Vector(0, 0, 1), 2), math.radians(0), math.radians(90)),
    Part.LineSegment(App.Vector(-42, -17, 0), App.Vector(-45, -17, 0)),
    Part.LineSegment(App.Vector(-45, -17, 0), App.Vector(-45, -27, 0)),
    Part.LineSegment(App.Vector(-45, 17, 0), App.Vector(-42, 17, 0)),
    Part.ArcOfCircle(Part.Circle(App.Vector(-42, 19, 0), App.Vector(0, 0, 1), 2), math.radians(-90), math.radians(0)),
    Part.LineSegment(App.Vector(-40, 19, 0), App.Vector(-40, 25, 0)),
    Part.ArcOfCircle(Part.Circle(App.Vector(-42, 25, 0), App.Vector(0, 0, 1), 2), math.radians(0), math.radians(90)),
    Part.LineSegment(App.Vector(-42, 27, 0), App.Vector(-45, 27, 0)),
    Part.LineSegment(App.Vector(-45, 27, 0), App.Vector(-45, 17, 0)),
], False)
sketch6.addConstraint([
    Sketcher.Constraint("Coincident", 0, 2, 1, 1),
    Sketcher.Constraint("Tangent", 1, 2, 2, 1),
    Sketcher.Constraint("Tangent", 2, 2, 3, 1),
    Sketcher.Constraint("Tangent", 3, 2, 4, 1),
    Sketcher.Constraint("Tangent", 4, 2, 5, 1),
    Sketcher.Constraint("Coincident", 5, 2, 0, 1),
    Sketcher.Constraint("Coincident", 6, 2, 7, 1),
    Sketcher.Constraint("Tangent", 7, 2, 8, 1),
    Sketcher.Constraint("Tangent", 8, 2, 9, 1),
    Sketcher.Constraint("Tangent", 9, 2, 10, 1),
    Sketcher.Constraint("Tangent", 10, 2, 11, 1),
    Sketcher.Constraint("Coincident", 11, 2, 6, 1),
    Sketcher.Constraint("Tangent", 12, 2, 13, 1),
    Sketcher.Constraint("Tangent", 13, 2, 14, 1),
    Sketcher.Constraint("Tangent", 14, 2, 15, 1),
    Sketcher.Constraint("Tangent", 15, 2, 16, 1),
    Sketcher.Constraint("Coincident", 16, 2, 17, 1),
    Sketcher.Constraint("Coincident", 17, 2, 12, 1),
    Sketcher.Constraint("Tangent", 18, 2, 19, 1),
    Sketcher.Constraint("Tangent", 19, 2, 20, 1),
    Sketcher.Constraint("Tangent", 20, 2, 21, 1),
    Sketcher.Constraint("Tangent", 21, 2, 22, 1),
    Sketcher.Constraint("Coincident", 22, 2, 23, 1),
    Sketcher.Constraint("Coincident", 23, 2, 18, 1),
    Sketcher.Constraint("Tangent", 24, 2, 25, 1),
    Sketcher.Constraint("Tangent", 25, 2, 26, 1),
    Sketcher.Constraint("Tangent", 26, 2, 27, 1),
    Sketcher.Constraint("Tangent", 27, 2, 28, 1),
    Sketcher.Constraint("Coincident", 28, 2, 29, 1),
    Sketcher.Constraint("Coincident", 29, 2, 24, 1),
    Sketcher.Constraint("Tangent", 30, 2, 31, 1),
    Sketcher.Constraint("Tangent", 31, 2, 32, 1),
    Sketcher.Constraint("Tangent", 32, 2, 33, 1),
    Sketcher.Constraint("Tangent", 33, 2, 34, 1),
    Sketcher.Constraint("Coincident", 34, 2, 35, 1),
    Sketcher.Constraint("Coincident", 35, 2, 30, 1),
    Sketcher.Constraint("Tangent", 36, 2, 37, 1),
    Sketcher.Constraint("Tangent", 37, 2, 38, 1),
    Sketcher.Constraint("Tangent", 38, 2, 39, 1),
    Sketcher.Constraint("Tangent", 39, 2, 40, 1),
    Sketcher.Constraint("Coincident", 40, 2, 41, 1),
    Sketcher.Constraint("Coincident", 41, 2, 36, 1),
    Sketcher.Constraint("Tangent", 42, 2, 43, 1),
    Sketcher.Constraint("Tangent", 43, 2, 44, 1),
    Sketcher.Constraint("Tangent", 44, 2, 45, 1),
    Sketcher.Constraint("Tangent", 45, 2, 46, 1),
    Sketcher.Constraint("Coincident", 46, 2, 47, 1),
    Sketcher.Constraint("Coincident", 47, 2, 42, 1),
    Sketcher.Constraint("Horizontal", 0),
    Sketcher.Constraint("Vertical", 1),
    Sketcher.Constraint("Horizontal", 3),
    Sketcher.Constraint("Vertical", 5),
    Sketcher.Constraint("Horizontal", 6),
    Sketcher.Constraint("Vertical", 7),
    Sketcher.Constraint("Horizontal", 9),
    Sketcher.Constraint("Vertical", 11),
    Sketcher.Constraint("Horizontal", 12),
    Sketcher.Constraint("Vertical", 14),
    Sketcher.Constraint("Horizontal", 16),
    Sketcher.Constraint("Vertical", 17),
    Sketcher.Constraint("Horizontal", 18),
    Sketcher.Constraint("Vertical", 20),
    Sketcher.Constraint("Horizontal", 22),
    Sketcher.Constraint("Vertical", 23),
    Sketcher.Constraint("Vertical", 24),
    Sketcher.Constraint("Horizontal", 26),
    Sketcher.Constraint("Vertical", 28),
    Sketcher.Constraint("Horizontal", 29),
    Sketcher.Constraint("Vertical", 30),
    Sketcher.Constraint("Horizontal", 32),
    Sketcher.Constraint("Vertical", 34),
    Sketcher.Constraint("Horizontal", 35),
    Sketcher.Constraint("Horizontal", 36),
    Sketcher.Constraint("Vertical", 38),
    Sketcher.Constraint("Horizontal", 40),
    Sketcher.Constraint("Vertical", 41),
    Sketcher.Constraint("Horizontal", 42),
    Sketcher.Constraint("Vertical", 44),
    Sketcher.Constraint("Horizontal", 46),
    Sketcher.Constraint("Vertical", 47),
    Sketcher.Constraint("Equal", 2, 4),
    Sketcher.Constraint("Equal", 4, 8),
    Sketcher.Constraint("Equal", 8, 10),
    Sketcher.Constraint("Equal", 10, 13),
    Sketcher.Constraint("Equal", 13, 15),
    Sketcher.Constraint("Equal", 15, 19),
    Sketcher.Constraint("Equal", 19, 21),
    Sketcher.Constraint("Equal", 21, 25),
    Sketcher.Constraint("Equal", 25, 27),
    Sketcher.Constraint("Equal", 27, 31),
    Sketcher.Constraint("Equal", 31, 33),
    Sketcher.Constraint("Equal", 33, 37),
    Sketcher.Constraint("Equal", 37, 39),
    Sketcher.Constraint("Equal", 39, 43),
    Sketcher.Constraint("Equal", 43, 45),
    Sketcher.Constraint("Symmetric", 2, 3, 25, 3, -1, 1),
    Sketcher.Constraint("Symmetric", 8, 3, 31, 3, -1, 1),
    Sketcher.Constraint("Symmetric", 13, 3, 37, 3, -1, 1),
    Sketcher.Constraint("Symmetric", 19, 3, 43, 3, -1, 1),
    Sketcher.Constraint("Symmetric", 5, 2, 28, 2, -1, 1),
    Sketcher.Constraint("Symmetric", 11, 2, 34, 2, -1, 1),
    Sketcher.Constraint("Symmetric", 16, 2, 40, 2, -1, 1),
    Sketcher.Constraint("Symmetric", 22, 2, 46, 2, -1, 1),
    Sketcher.Constraint("Symmetric", 4, 3, 8, 3, -2),
    Sketcher.Constraint("Symmetric", 21, 3, 37, 3, -2),
    Sketcher.Constraint("Symmetric", 0, 2, 11, 2, -2),
    Sketcher.Constraint("Symmetric", 23, 2, 40, 2, -2),
    Sketcher.Constraint("Equal", 46, 1),
    Sketcher.Constraint("Equal", 32, 14),
    Sketcher.Constraint("Radius", 2, 2.0),
    Sketcher.Constraint("DistanceX", 0, 2, 0, 1, 10.0),
    Sketcher.Constraint("DistanceX", 12, 2, 12, 1, 3.0),
    Sketcher.Constraint("DistanceX", 2, 3, -1, 1, 25.0),
    Sketcher.Constraint("DistanceY", -1, 1, 2, 3, 42.0),
    Sketcher.Constraint("DistanceX", -1, 1, 13, 3, 42.0),
    Sketcher.Constraint("DistanceY", -1, 1, 13, 3, 25.0),
])
sketch6.setExpression("Constraints[109]", "Params.sketch6_radius")
sketch6.setExpression("Constraints[110]", "Params.sketch6_width")
sketch6.setExpression("Constraints[111]", "Params.sketch6_width2")
pocket5 = body.newObject("PartDesign::Pocket", "Pocket004")
pocket5.Profile = sketch6
pocket5.setExpression("Length", "Params.pocket5_length")

sketch7 = body.newObject("Sketcher::SketchObject", "Sketch006")
sketch7.AttachmentSupport = (doc.getObject("XY_Plane"), [""])
sketch7.MapMode = "FlatFace"
sketch7.AttachmentOffset = App.Placement(App.Vector(0, 0, 5), App.Rotation())
sketch7.addGeometry([
    Part.Circle(App.Vector(-24.5, 24.5, 0), App.Vector(0, 0, 1), 2.1),
    Part.Circle(App.Vector(24.5, 24.5, 0), App.Vector(0, 0, 1), 2.1),
    Part.Circle(App.Vector(24.5, -24.5, 0), App.Vector(0, 0, 1), 2.1),
    Part.Circle(App.Vector(-24.5, -24.5, 0), App.Vector(0, 0, 1), 2.1),
], False)
sketch7.addConstraint([
    Sketcher.Constraint("Equal", 0, 1),
    Sketcher.Constraint("Equal", 1, 2),
    Sketcher.Constraint("Equal", 2, 3),
    Sketcher.Constraint("Symmetric", 0, 3, 2, 3, -1, 1),
    Sketcher.Constraint("Symmetric", 1, 3, 3, 3, -1, 1),
    Sketcher.Constraint("Symmetric", 0, 3, 1, 3, -2),
    Sketcher.Constraint("Diameter", 0, 4.2),
    Sketcher.Constraint("DistanceX", 0, 3, 1, 3, 49.0),
    Sketcher.Constraint("DistanceY", 2, 3, 1, 3, 49.0),
])
sketch7.setExpression("Constraints[6]", "Params.sketch7_diameter")
doc.recompute()
hole = body.newObject("PartDesign::Hole", "Hole")
hole.Profile = sketch7
hole.ThreadType = "None"
hole.setExpression("Diameter", "Params.hole_diameter")
hole.DepthType = "Dimension"
hole.setExpression("Depth", "Params.hole_depth")
hole.DrillPoint = "Angled"
hole.DrillPointAngle = 118

sketch8 = body.newObject("Sketcher::SketchObject", "Sketch007")
sketch8.AttachmentSupport = (doc.getObject("XZ_Plane"), [""])
sketch8.MapMode = "FlatFace"
sketch8.AttachmentOffset = App.Placement(App.Vector(0, 0, -45), App.Rotation())
sketch8.addGeometry(Part.Circle(App.Vector(0, 20, 0), App.Vector(0, 0, 1), 8), False)
sketch8.addConstraint([
    Sketcher.Constraint("PointOnObject", 0, 3, -2),
    Sketcher.Constraint("Diameter", 0, 15.5),
    Sketcher.Constraint("DistanceY", -1, 1, 0, 3, 20.0),
])
sketch8.setExpression("Constraints[1]", "Params.sketch8_diameter")
pocket6 = body.newObject("PartDesign::Pocket", "Pocket005")
pocket6.Profile = sketch8
pocket6.Type = "UpToFirst"
pocket6.Reversed = True

doc.recompute()
